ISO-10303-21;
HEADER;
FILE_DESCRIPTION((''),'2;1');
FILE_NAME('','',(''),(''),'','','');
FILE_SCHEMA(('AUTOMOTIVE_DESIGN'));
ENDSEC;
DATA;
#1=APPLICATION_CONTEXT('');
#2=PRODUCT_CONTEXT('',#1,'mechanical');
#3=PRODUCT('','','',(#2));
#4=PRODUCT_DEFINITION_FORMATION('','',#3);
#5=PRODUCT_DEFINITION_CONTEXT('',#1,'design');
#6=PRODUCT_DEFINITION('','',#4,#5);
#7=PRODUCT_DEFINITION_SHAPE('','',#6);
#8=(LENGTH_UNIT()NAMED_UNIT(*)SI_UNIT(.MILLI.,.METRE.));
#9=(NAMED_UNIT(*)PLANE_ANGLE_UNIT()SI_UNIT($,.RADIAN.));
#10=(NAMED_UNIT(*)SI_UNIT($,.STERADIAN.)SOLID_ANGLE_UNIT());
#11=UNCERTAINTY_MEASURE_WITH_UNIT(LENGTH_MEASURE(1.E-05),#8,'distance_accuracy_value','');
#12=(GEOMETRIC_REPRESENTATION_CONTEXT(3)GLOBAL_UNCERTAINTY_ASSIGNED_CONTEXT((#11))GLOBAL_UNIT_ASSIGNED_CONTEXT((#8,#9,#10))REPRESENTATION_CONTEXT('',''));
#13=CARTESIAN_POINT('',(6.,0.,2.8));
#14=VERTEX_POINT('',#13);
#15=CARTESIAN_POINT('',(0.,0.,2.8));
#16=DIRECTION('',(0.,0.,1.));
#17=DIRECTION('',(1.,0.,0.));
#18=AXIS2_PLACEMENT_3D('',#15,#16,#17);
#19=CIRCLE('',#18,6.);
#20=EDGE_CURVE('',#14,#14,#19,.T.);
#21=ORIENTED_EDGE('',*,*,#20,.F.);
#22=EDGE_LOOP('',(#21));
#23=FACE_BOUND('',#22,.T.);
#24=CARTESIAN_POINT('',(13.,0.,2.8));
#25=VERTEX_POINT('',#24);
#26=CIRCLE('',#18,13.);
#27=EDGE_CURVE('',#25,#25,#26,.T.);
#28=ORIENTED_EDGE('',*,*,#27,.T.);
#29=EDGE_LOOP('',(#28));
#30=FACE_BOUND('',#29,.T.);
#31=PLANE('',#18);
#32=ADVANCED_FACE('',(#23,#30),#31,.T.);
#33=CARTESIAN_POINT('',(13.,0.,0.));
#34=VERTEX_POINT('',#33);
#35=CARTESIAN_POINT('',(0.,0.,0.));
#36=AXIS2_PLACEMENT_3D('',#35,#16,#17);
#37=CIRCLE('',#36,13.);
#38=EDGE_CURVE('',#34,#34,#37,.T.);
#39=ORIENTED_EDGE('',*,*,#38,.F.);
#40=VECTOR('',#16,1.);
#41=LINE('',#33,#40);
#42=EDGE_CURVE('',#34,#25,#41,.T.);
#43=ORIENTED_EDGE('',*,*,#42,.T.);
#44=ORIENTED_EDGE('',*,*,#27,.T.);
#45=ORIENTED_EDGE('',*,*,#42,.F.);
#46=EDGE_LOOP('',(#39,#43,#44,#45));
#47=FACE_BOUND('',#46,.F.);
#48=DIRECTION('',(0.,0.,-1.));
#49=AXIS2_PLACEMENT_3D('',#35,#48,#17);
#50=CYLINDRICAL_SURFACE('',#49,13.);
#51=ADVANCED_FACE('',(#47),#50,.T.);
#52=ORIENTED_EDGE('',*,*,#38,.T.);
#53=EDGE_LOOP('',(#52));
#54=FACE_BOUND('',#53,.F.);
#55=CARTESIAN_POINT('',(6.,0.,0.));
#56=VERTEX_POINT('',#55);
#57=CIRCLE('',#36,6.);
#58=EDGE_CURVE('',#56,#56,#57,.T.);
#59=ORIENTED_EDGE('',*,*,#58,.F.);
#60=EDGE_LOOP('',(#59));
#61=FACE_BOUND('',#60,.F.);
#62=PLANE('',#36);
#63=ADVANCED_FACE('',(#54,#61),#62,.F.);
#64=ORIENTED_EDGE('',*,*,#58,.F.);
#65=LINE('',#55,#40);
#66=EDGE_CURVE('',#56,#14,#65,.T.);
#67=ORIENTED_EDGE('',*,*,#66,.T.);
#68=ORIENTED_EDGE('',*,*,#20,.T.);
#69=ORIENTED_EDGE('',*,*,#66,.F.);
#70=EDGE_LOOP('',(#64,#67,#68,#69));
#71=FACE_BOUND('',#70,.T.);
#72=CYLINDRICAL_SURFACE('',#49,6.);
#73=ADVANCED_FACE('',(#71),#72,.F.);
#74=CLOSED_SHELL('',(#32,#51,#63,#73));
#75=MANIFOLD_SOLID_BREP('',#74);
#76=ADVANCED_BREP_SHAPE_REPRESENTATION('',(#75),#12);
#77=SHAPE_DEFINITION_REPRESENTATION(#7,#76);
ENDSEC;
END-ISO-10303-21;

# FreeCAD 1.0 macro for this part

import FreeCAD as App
import Part
import Sketcher

doc = App.newDocument("Part")
body = doc.addObject("PartDesign::Body", "Body")

sketch1 = body.newObject("Sketcher::SketchObject", "Sketch")
sketch1.AttachmentSupport = (doc.getObject("XY_Plane"), [""])
sketch1.MapMode = "FlatFace"
sketch1.addGeometry(Part.Circle(App.Vector(0, 0, 0), App.Vector(0, 0, 1), 13), False)
sketch1.addGeometry(Part.Circle(App.Vector(0, 0, 0), App.Vector(0, 0, 1), 6), False)
sketch1.addConstraint(Sketcher.Constraint("Coincident", 0, 3, -1, 1))
sketch1.addConstraint(Sketcher.Constraint("Coincident", 1, 3, -1, 1))
sketch1.addConstraint(Sketcher.Constraint("Diameter", 0, 26.0))
sketch1.addConstraint(Sketcher.Constraint("Diameter", 1, 12.0))
pad1 = body.newObject("PartDesign::Pad", "Pad")
pad1.Profile = sketch1
pad1.Length = 2.8

doc.recompute()
